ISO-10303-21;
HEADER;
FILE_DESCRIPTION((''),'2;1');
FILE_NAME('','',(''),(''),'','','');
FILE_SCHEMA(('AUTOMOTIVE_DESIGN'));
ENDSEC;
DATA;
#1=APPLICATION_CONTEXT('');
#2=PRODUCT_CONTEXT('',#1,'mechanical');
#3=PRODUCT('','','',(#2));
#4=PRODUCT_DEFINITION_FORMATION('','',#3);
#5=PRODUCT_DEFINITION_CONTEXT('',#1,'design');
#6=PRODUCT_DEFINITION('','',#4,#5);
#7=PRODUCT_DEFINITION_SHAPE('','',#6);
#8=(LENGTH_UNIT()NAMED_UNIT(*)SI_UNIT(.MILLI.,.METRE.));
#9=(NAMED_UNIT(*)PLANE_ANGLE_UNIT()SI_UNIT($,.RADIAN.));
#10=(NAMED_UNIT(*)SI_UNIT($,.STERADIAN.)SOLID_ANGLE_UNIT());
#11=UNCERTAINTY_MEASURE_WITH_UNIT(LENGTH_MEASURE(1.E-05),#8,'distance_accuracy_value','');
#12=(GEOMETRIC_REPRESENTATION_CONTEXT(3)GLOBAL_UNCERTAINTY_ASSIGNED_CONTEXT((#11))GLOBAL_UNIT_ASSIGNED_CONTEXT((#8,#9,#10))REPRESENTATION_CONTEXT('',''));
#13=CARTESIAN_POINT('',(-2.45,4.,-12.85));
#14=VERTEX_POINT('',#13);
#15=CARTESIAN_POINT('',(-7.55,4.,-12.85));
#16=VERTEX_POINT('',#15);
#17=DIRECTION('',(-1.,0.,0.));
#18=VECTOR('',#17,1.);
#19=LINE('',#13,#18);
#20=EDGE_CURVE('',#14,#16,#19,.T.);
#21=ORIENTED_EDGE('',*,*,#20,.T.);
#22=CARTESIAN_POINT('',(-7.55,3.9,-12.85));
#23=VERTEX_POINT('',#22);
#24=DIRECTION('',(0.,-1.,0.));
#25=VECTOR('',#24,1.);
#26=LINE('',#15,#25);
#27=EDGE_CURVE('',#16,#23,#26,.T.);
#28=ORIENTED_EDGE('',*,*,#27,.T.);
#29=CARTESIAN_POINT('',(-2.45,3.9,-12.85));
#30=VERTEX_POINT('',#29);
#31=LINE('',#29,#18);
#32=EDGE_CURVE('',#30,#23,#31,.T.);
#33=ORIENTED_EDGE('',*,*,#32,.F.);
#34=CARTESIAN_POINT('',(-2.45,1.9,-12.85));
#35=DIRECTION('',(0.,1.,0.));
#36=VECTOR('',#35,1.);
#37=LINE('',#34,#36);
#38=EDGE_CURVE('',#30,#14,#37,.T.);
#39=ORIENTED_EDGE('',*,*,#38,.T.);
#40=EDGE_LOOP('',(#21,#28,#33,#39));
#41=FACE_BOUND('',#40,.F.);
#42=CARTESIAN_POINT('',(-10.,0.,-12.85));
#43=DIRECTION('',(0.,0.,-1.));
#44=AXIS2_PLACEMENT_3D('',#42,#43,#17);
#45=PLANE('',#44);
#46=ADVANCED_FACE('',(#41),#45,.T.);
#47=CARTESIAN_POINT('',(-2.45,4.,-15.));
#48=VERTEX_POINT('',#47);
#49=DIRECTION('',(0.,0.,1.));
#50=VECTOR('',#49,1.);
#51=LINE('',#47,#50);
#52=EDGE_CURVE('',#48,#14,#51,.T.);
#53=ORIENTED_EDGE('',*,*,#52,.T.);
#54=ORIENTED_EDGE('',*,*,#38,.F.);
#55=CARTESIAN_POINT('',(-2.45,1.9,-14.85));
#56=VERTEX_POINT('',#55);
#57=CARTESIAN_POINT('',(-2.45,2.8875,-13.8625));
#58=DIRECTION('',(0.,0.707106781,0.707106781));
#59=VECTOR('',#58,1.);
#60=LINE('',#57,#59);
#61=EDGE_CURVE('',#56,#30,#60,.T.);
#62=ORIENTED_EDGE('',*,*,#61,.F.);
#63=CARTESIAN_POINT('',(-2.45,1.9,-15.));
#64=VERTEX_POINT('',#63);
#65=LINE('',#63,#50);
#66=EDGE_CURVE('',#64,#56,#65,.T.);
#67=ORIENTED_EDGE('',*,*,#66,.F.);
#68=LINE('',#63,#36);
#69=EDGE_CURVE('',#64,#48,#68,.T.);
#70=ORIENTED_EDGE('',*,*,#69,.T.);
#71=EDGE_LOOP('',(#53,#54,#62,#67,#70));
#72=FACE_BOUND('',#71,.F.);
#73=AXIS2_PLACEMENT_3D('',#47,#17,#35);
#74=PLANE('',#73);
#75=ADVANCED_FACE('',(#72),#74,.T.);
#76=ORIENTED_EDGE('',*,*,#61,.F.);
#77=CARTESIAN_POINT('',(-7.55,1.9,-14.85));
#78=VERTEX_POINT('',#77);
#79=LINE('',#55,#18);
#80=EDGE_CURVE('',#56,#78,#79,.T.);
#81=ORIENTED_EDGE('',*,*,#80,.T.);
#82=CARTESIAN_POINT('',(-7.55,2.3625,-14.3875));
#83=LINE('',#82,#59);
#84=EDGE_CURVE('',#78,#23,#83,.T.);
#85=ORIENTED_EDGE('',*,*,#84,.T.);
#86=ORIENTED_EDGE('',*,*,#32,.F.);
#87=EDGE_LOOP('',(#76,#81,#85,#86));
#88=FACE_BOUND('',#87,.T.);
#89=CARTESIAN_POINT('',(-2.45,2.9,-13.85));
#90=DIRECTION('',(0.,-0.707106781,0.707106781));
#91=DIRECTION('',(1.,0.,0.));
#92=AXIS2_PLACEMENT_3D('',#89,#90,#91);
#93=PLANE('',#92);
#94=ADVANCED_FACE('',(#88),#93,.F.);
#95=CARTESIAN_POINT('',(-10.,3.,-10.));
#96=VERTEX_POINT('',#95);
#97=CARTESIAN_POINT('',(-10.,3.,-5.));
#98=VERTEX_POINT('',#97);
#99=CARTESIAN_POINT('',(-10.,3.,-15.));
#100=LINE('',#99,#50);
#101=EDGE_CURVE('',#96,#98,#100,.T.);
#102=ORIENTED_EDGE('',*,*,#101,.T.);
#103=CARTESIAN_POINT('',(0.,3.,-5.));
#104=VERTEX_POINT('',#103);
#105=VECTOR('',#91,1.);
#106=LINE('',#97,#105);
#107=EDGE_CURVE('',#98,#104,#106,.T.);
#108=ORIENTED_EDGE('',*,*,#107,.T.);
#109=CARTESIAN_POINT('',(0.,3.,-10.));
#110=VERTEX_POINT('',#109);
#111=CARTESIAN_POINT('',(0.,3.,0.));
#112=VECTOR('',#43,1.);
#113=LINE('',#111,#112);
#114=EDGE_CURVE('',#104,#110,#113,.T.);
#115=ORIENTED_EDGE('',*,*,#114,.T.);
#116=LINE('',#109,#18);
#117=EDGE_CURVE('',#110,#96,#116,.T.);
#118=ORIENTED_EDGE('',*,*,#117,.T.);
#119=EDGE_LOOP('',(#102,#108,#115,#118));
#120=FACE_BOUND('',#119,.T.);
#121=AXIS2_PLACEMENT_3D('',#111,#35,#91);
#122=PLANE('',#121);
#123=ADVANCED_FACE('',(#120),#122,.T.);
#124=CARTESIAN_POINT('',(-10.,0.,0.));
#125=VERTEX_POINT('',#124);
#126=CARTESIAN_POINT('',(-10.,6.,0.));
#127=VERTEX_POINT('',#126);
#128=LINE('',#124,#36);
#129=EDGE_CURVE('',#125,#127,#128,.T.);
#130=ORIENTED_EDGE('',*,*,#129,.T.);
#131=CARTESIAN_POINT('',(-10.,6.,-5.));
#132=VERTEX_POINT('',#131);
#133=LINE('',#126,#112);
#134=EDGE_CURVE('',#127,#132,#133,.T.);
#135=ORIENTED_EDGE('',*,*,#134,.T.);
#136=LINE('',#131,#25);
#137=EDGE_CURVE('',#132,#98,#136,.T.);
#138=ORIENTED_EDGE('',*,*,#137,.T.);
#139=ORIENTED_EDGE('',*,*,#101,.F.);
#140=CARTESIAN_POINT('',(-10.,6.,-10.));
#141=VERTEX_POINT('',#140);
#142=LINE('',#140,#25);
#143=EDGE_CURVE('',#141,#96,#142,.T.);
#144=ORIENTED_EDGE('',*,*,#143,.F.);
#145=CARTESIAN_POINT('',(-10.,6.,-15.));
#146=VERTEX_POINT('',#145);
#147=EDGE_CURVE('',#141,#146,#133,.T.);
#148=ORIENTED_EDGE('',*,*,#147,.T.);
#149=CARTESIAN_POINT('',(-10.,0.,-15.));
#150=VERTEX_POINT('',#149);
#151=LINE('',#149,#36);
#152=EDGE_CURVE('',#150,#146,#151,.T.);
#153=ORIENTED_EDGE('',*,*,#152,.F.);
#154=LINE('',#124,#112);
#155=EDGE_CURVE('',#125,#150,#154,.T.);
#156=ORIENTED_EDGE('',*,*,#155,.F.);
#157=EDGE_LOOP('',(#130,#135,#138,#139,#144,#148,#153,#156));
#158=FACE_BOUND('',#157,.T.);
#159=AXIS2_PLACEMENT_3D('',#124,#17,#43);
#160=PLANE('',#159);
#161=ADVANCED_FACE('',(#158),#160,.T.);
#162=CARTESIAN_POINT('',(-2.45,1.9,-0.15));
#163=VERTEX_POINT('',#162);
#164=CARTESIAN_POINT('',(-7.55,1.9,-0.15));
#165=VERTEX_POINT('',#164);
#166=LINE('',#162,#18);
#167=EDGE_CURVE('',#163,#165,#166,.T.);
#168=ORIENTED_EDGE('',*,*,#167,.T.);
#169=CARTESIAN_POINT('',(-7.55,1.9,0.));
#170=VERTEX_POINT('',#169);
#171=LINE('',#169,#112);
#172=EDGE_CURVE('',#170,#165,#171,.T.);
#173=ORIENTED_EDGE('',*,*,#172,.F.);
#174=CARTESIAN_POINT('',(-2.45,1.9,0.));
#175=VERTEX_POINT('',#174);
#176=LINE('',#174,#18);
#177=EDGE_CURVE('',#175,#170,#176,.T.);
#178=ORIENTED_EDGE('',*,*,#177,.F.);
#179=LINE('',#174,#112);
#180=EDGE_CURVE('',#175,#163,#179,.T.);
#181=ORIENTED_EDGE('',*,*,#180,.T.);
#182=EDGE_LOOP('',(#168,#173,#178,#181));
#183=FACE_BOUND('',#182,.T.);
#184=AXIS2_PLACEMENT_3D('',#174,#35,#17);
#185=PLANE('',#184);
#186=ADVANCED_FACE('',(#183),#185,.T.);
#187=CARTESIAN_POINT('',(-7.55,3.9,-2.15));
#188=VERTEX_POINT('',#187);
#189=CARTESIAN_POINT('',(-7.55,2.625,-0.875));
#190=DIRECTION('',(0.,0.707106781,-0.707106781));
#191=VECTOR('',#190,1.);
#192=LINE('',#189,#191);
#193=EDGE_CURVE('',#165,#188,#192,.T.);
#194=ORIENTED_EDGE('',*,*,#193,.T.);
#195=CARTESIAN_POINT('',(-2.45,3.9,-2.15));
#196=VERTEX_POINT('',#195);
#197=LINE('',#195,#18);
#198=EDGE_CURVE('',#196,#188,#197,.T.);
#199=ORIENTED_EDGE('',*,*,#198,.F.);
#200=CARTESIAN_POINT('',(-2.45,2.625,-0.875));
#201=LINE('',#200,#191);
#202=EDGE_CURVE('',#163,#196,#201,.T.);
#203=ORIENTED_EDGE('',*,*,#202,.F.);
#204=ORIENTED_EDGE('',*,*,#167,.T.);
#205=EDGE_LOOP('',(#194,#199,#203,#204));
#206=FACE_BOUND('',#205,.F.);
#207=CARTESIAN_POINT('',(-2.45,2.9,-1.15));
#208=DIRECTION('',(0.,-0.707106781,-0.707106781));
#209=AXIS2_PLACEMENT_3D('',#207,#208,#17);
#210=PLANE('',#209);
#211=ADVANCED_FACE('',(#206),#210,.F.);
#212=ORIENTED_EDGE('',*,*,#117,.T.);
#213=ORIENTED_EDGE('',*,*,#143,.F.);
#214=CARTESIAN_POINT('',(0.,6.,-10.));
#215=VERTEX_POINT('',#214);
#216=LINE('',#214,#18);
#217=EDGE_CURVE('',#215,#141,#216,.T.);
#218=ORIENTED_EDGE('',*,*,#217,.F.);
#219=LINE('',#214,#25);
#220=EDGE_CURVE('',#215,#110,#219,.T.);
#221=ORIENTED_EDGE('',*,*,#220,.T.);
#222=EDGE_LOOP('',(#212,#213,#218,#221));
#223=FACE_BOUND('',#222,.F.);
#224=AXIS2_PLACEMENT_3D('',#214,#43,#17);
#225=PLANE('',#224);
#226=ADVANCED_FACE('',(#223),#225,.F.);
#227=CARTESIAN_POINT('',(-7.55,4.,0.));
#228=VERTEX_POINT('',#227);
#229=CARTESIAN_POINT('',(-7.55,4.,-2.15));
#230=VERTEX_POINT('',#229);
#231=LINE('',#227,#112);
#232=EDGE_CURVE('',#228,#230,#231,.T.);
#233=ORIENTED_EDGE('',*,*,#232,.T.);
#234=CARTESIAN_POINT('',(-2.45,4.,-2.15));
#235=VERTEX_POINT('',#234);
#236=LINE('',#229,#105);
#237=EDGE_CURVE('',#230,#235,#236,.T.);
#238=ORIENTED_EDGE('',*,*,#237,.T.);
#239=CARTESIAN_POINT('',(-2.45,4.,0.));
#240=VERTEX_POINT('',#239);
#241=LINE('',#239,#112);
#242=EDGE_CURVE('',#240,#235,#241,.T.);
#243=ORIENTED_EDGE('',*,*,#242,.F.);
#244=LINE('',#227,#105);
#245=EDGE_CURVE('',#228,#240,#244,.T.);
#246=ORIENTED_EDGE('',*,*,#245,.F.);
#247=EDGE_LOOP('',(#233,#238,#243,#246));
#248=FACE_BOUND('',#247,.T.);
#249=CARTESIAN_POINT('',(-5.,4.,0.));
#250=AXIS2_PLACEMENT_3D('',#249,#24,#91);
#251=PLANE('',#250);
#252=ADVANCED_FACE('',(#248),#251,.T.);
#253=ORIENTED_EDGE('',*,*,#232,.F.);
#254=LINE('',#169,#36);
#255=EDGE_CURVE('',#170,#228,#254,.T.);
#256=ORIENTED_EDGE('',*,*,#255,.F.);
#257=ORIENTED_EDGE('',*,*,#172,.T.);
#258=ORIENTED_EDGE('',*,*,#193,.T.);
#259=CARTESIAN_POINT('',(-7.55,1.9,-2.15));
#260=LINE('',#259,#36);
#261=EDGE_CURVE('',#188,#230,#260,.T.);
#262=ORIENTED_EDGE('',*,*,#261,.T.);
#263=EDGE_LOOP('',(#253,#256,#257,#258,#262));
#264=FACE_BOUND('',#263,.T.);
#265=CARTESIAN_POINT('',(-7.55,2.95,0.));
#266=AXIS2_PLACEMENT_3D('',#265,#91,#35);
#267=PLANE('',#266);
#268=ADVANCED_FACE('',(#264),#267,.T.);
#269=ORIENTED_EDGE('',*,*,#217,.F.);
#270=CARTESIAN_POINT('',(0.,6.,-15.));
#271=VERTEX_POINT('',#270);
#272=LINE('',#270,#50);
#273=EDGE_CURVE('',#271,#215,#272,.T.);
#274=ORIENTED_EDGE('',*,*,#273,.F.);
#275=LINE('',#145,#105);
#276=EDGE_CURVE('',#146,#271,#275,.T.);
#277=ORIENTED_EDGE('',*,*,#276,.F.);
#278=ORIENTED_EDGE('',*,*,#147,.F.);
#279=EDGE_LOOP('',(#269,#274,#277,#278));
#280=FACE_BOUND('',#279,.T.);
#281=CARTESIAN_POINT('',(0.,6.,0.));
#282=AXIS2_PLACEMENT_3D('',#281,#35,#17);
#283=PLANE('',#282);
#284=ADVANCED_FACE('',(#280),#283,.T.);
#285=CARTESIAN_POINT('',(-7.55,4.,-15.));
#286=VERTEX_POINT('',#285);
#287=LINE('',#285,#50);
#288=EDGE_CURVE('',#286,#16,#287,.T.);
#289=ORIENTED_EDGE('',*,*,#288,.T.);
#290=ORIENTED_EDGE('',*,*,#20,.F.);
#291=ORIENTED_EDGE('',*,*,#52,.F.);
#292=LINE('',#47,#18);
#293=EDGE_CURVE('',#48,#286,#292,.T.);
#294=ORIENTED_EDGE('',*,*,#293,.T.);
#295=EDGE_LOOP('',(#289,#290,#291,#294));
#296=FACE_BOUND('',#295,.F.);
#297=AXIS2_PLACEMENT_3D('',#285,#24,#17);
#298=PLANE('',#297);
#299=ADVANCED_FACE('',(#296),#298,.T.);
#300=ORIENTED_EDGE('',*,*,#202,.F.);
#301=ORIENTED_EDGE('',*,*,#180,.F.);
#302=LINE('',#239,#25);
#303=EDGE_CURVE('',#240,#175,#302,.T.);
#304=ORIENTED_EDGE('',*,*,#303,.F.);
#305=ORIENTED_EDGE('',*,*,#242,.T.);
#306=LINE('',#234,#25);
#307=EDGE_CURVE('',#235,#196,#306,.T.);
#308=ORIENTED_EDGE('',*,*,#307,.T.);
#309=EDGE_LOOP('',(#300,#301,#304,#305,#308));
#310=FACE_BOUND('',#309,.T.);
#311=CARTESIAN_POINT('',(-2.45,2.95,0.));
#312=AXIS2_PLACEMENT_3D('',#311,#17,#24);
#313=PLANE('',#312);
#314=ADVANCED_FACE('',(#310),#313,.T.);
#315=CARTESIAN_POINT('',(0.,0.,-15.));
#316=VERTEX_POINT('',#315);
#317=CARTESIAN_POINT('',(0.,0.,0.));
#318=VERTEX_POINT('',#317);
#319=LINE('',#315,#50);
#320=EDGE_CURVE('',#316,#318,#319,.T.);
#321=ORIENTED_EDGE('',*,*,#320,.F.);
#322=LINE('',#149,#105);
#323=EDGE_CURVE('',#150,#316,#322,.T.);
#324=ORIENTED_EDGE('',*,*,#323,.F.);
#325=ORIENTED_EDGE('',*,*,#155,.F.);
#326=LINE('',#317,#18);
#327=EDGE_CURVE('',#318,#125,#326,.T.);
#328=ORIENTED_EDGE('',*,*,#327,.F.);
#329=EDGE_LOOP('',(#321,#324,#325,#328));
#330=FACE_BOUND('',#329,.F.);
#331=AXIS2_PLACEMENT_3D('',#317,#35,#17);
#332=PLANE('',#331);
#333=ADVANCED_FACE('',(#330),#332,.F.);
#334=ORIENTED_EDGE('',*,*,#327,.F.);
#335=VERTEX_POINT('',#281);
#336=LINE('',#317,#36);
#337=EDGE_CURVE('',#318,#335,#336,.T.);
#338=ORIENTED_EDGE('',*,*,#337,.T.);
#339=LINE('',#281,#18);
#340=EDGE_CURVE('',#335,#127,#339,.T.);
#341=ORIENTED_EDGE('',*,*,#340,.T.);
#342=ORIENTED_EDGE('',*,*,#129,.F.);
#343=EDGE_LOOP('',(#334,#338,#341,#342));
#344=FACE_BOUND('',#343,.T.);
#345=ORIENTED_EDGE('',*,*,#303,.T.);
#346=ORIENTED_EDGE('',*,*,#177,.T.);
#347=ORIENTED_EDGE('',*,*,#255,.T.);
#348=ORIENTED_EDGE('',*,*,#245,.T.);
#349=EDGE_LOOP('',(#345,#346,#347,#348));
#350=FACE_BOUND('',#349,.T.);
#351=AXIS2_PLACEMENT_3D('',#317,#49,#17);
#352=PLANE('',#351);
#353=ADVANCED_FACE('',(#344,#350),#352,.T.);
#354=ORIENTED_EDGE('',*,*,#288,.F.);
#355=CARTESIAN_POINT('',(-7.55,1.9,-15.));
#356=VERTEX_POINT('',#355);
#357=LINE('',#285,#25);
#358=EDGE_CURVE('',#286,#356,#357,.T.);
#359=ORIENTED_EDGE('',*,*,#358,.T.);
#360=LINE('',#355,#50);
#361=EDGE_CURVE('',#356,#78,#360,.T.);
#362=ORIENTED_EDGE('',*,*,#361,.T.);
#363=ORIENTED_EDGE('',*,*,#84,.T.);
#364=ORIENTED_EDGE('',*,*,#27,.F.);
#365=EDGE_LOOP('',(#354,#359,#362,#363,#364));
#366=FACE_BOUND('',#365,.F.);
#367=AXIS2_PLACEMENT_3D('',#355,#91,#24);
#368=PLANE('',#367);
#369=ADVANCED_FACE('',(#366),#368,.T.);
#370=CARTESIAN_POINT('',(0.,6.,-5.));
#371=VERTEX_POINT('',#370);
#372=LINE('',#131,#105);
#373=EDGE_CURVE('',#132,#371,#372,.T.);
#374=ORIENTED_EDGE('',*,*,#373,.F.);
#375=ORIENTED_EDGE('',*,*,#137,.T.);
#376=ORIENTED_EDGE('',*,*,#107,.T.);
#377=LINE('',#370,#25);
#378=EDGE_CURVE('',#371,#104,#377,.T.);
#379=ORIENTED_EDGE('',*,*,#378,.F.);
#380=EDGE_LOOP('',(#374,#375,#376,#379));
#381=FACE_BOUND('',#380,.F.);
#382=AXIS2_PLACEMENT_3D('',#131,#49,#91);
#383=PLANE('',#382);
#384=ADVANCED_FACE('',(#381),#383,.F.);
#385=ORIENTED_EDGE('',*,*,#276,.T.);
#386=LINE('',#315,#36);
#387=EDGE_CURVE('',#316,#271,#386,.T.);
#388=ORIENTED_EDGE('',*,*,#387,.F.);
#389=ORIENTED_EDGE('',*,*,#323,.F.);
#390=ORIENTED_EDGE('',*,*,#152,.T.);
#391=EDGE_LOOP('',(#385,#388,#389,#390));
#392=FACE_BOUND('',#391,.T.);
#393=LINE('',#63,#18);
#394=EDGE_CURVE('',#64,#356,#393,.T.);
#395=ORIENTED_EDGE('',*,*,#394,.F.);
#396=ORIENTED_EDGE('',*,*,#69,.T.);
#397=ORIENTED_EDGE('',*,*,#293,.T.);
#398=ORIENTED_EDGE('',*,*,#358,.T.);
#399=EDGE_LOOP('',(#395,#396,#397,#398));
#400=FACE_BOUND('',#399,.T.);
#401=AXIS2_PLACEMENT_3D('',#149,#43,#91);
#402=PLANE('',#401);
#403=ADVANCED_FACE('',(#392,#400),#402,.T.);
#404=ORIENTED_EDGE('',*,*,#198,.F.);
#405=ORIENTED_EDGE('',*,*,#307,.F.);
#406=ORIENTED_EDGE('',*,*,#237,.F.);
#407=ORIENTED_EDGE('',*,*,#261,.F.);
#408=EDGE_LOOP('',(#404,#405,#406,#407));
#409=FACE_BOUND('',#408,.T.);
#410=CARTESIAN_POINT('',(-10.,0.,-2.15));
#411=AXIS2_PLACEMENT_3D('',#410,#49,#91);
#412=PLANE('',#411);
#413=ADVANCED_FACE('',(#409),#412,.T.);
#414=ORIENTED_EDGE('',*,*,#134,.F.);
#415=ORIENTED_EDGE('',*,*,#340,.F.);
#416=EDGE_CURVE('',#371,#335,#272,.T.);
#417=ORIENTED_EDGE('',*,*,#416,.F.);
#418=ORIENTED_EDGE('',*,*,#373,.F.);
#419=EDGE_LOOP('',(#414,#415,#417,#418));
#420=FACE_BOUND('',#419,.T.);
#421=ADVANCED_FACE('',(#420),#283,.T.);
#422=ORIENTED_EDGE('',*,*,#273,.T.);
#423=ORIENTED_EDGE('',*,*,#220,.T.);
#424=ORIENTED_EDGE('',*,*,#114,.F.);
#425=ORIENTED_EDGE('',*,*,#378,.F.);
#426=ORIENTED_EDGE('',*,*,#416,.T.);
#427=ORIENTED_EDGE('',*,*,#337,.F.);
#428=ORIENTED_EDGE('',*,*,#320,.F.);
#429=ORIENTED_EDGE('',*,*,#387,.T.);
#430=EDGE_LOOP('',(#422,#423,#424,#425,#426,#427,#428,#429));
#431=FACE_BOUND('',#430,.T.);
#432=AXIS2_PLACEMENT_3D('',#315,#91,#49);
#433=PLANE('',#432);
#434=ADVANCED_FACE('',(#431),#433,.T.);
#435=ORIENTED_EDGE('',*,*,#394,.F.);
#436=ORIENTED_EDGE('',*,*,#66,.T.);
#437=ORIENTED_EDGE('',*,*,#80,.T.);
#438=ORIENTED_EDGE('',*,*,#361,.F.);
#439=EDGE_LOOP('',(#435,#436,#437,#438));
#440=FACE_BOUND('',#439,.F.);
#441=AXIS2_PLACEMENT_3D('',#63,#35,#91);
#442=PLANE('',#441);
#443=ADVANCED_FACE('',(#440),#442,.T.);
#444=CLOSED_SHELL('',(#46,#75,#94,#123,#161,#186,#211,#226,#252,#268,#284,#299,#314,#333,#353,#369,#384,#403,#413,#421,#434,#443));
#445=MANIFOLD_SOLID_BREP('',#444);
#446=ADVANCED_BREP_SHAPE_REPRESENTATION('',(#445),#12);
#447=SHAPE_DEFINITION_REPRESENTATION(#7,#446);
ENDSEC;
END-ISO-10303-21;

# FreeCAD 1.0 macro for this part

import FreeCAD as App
import Part
import Sketcher
Q = App.Units.Quantity


def edges_at(feature, points):
    """Names of the edges that pass closest to the given points."""
    edges = feature.Shape.Edges
    near = lambda p: min(range(len(edges)), key=lambda i: edges[i].distToShape(Part.Vertex(*p))[0])
    return sorted({f"Edge{near(p) + 1}" for p in points})

doc = App.newDocument("Part")
params = doc.addObject("Spreadsheet::Sheet", "Params")
for row, (alias, value) in enumerate([
    ("sketch1_width", "10 mm"),
    ("sketch1_height", "15 mm"),
    ("pad1_length", "6 mm"),
    ("sketch2_height", "5 mm"),
    ("sketch2_width", "10 mm"),
    ("pocket1_length", "3 mm"),
    ("sketch3_width", "5.1 mm"),
    ("sketch3_height", "2.1 mm"),
    ("pocket2_length", "2.15 mm"),
    ("chamfer_size", "2 mm"),
], start=1):
    params.set(f"A{row}", alias)
    params.set(f"B{row}", "=" + value)
    params.setAlias(f"B{row}", alias)

body = doc.addObject("PartDesign::Body", "Body")

# Sketch on XZ plane
sketch1 = body.newObject("Sketcher::SketchObject", "Sketch")
sketch1.AttachmentSupport = (doc.getObject("XZ_Plane"), [""])
sketch1.MapMode = "FlatFace"
sketch1.addGeometry([
    Part.LineSegment(App.Vector(-10, 0, 0), App.Vector(0, 0, 0)),
    Part.LineSegment(App.Vector(0, 0, 0), App.Vector(0, -15, 0)),
    Part.LineSegment(App.Vector(0, -15, 0), App.Vector(-10, -15, 0)),
    Part.LineSegment(App.Vector(-10, -15, 0), App.Vector(-10, 0, 0)),
], False)
sketch1.addConstraint([
    Sketcher.Constraint("Coincident", 0, 2, 1, 1),
    Sketcher.Constraint("Coincident", 1, 2, 2, 1),
    Sketcher.Constraint("Coincident", 2, 2, 3, 1),
    Sketcher.Constraint("Coincident", 3, 2, 0, 1),
    Sketcher.Constraint("Horizontal", 0),
    Sketcher.Constraint("Vertical", 1),
    Sketcher.Constraint("Horizontal", 2),
    Sketcher.Constraint("Vertical", 3),
    Sketcher.Constraint("Coincident", 0, 2, -1, 1),
    Sketcher.Constraint("DistanceX", 0, 1, 0, 2, Q("10 mm")),
    Sketcher.Constraint("DistanceY", 1, 2, 1, 1, Q("15 mm")),
])
sketch1.setExpression("Constraints[9]", "Params.sketch1_width")
sketch1.setExpression("Constraints[10]", "Params.sketch1_height")
pad1 = body.newObject("PartDesign::Pad", "Pad")
pad1.Profile = sketch1
pad1.setExpression("Length", "Params.pad1_length")
pad1.Reversed = True

# Sketch on XZ plane
sketch2 = body.newObject("Sketcher::SketchObject", "Sketch001")
sketch2.AttachmentSupport = (doc.getObject("XZ_Plane"), [""])
sketch2.MapMode = "FlatFace"
sketch2.AttachmentOffset = App.Placement(App.Vector(0, 0, -6), App.Rotation())
sketch2.addGeometry([
    Part.LineSegment(App.Vector(0, -10, 0), App.Vector(-10, -10, 0)),
    Part.LineSegment(App.Vector(-10, -10, 0), App.Vector(-10, -5, 0)),
    Part.LineSegment(App.Vector(-10, -5, 0), App.Vector(0, -5, 0)),
    Part.LineSegment(App.Vector(0, -5, 0), App.Vector(0, -10, 0)),
], False)
sketch2.addConstraint([
    Sketcher.Constraint("Coincident", 0, 2, 1, 1),
    Sketcher.Constraint("Coincident", 1, 2, 2, 1),
    Sketcher.Constraint("Coincident", 2, 2, 3, 1),
    Sketcher.Constraint("Coincident", 3, 2, 0, 1),
    Sketcher.Constraint("Horizontal", 0),
    Sketcher.Constraint("Vertical", 1),
    Sketcher.Constraint("Horizontal", 2),
    Sketcher.Constraint("Vertical", 3),
    Sketcher.Constraint("PointOnObject", 2, 2, -2),
    Sketcher.Constraint("DistanceY", 1, 1, 1, 2, Q("5 mm")),
    Sketcher.Constraint("DistanceY", 1, 2, -1, 1, Q("5 mm")),
    Sketcher.Constraint("DistanceX", 0, 2, 0, 1, Q("10 mm")),
])
sketch2.setExpression("Constraints[9]", "Params.sketch2_height")
sketch2.setExpression("Constraints[11]", "Params.sketch2_width")
pocket1 = body.newObject("PartDesign::Pocket", "Pocket")
pocket1.Profile = sketch2
pocket1.setExpression("Length", "Params.pocket1_length")
pocket1.Reversed = True

# Sketch on XY plane
sketch3 = body.newObject("Sketcher::SketchObject", "Sketch002")
sketch3.AttachmentSupport = (doc.getObject("XY_Plane"), [""])
sketch3.MapMode = "FlatFace"
sketch3.addGeometry([
    Part.LineSegment(App.Vector(-2.5, 4, 0), App.Vector(-7.5, 4, 0)),
    Part.LineSegment(App.Vector(-7.5, 4, 0), App.Vector(-7.5, 1.9, 0)),
    Part.LineSegment(App.Vector(-7.5, 1.9, 0), App.Vector(-2.5, 1.9, 0)),
    Part.LineSegment(App.Vector(-2.5, 1.9, 0), App.Vector(-2.5, 4, 0)),
], False)
sketch3.addConstraint([
    Sketcher.Constraint("Coincident", 0, 2, 1, 1),
    Sketcher.Constraint("Coincident", 1, 2, 2, 1),
    Sketcher.Constraint("Coincident", 2, 2, 3, 1),
    Sketcher.Constraint("Coincident", 3, 2, 0, 1),
    Sketcher.Constraint("Horizontal", 0),
    Sketcher.Constraint("Vertical", 1),
    Sketcher.Constraint("Horizontal", 2),
    Sketcher.Constraint("Vertical", 3),
    Sketcher.Constraint("DistanceX", 0, 2, 0, 1, Q("5.1 mm")),
    Sketcher.Constraint("DistanceY", 1, 2, 1, 1, Q("2.1 mm")),
    Sketcher.Constraint("DistanceY", -1, 1, 0, 2, Q("4 mm")),
    Sketcher.Constraint("DistanceX", 0, 2, -1, 1, Q("7.55 mm")),
])
sketch3.setExpression("Constraints[8]", "Params.sketch3_width")
sketch3.setExpression("Constraints[9]", "Params.sketch3_height")
pocket2 = body.newObject("PartDesign::Pocket", "Pocket001")
pocket2.Profile = sketch3
pocket2.setExpression("Length", "Params.pocket2_length")
doc.recompute()

datumplane = body.newObject("PartDesign::Plane", "DatumPlane")
datumplane.AttachmentSupport = (doc.getObject("XY_Plane"), [""])
datumplane.MapMode = "FlatFace"
datumplane.AttachmentOffset = App.Placement(App.Vector(0, 0, -7.5), App.Rotation())
mirrored = body.newObject("PartDesign::Mirrored", "Mirrored")
mirrored.Originals = [pocket2]
mirrored.MirrorPlane = (datumplane, [""])
body.Tip = mirrored
doc.recompute()

chamfer = body.newObject("PartDesign::Chamfer", "Chamfer")
chamfer.Base = (mirrored, edges_at(mirrored, [(-5, 1.9, -2.15), (-5, 1.9, -12.85)]))
chamfer.setExpression("Size", "Params.chamfer_size")

doc.recompute()
